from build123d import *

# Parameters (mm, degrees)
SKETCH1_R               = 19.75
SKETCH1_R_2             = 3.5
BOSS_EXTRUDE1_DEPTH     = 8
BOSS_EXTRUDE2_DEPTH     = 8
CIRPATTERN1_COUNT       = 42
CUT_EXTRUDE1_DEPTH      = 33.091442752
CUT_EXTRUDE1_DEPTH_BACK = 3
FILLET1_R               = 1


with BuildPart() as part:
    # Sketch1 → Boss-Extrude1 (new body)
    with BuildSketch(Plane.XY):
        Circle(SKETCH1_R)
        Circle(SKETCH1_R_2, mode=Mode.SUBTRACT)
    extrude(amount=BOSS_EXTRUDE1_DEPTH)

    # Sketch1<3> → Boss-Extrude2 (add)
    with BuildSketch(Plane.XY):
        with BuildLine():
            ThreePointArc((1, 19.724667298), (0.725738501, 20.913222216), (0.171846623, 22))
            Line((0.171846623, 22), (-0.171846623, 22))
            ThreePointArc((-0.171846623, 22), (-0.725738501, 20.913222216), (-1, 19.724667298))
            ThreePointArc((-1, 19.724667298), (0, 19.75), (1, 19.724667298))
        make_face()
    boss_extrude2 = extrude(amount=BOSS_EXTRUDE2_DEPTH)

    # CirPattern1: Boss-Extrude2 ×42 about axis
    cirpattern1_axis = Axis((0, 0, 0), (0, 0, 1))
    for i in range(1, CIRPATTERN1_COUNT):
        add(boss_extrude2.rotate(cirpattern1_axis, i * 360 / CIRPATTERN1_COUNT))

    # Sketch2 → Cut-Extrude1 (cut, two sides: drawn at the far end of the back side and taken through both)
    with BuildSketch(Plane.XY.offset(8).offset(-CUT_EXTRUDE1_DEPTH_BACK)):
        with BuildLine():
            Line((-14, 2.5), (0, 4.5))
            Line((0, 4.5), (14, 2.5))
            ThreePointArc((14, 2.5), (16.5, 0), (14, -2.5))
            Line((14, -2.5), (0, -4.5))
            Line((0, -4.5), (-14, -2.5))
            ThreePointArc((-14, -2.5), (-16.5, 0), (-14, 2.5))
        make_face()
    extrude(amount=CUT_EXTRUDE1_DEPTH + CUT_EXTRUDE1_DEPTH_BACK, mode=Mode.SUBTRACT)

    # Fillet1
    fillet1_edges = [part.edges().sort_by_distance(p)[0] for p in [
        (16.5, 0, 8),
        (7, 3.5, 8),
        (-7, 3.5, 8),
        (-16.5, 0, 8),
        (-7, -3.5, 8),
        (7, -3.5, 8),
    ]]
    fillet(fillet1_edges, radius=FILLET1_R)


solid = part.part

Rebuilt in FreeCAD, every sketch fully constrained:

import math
import FreeCAD as App
import Part
import Sketcher
Q = App.Units.Quantity


def edges_at(feature, points):
    """Names of the edges that pass closest to the given points."""
    edges = feature.Shape.Edges
    near = lambda p: min(range(len(edges)), key=lambda i: edges[i].distToShape(Part.Vertex(*p))[0])
    return sorted({f"Edge{near(p) + 1}" for p in points})

doc = App.newDocument("Part")
body = doc.addObject("PartDesign::Body", "Body")

sketch1 = doc.addObject("Sketcher::SketchObject", "Sketch")
body.addObject(sketch1)
sketch1.AttachmentSupport = (doc.XY_Plane, [""])
sketch1.MapMode = "FlatFace"
sketch1.addGeometry([
    Part.Circle(App.Vector(0, 0, 0), App.Vector(0, 0, 1), 19.8),
    Part.Circle(App.Vector(0, 0, 0), App.Vector(0, 0, 1), 3.5),
], False)
sketch1.addConstraint([
    Sketcher.Constraint("Coincident", 0, 3, -1, 1),
    Sketcher.Constraint("Coincident", 1, 3, -1, 1),
    Sketcher.Constraint("Diameter", 1, Q("7 mm")),
    Sketcher.Constraint("Diameter", 0, Q("39.5 mm")),
])
pad1 = doc.addObject("PartDesign::Pad", "Pad")
body.addObject(pad1)
pad1.Profile = sketch1
pad1.Length = 8

sketch2 = doc.addObject("Sketcher::SketchObject", "Sketch001")
body.addObject(sketch2)
sketch2.AttachmentSupport = (doc.XY_Plane, [""])
sketch2.MapMode = "FlatFace"
sketch2.addGeometry([
    Part.ArcOfCircle(Part.Circle(App.Vector(-3.97, 19.2, 0), App.Vector(0, 0, 1), 5), math.radians(6), math.radians(34)),
    Part.LineSegment(App.Vector(0.17, 22, 0), App.Vector(-0.17, 22, 0)),
    Part.ArcOfCircle(Part.Circle(App.Vector(3.97, 19.2, 0), App.Vector(0, 0, 1), 5), math.radians(146), math.radians(174)),
    Part.ArcOfCircle(Part.Circle(App.Vector(0, 0, 0), App.Vector(0, 0, 1), 19.75), math.radians(87.1), math.radians(92.9)),
], False)
sketch2.addConstraint([
    Sketcher.Constraint("Coincident", 0, 2, 1, 1),
    Sketcher.Constraint("Coincident", 1, 2, 2, 1),
    Sketcher.Constraint("Coincident", 2, 2, 3, 2),
    Sketcher.Constraint("Coincident", 3, 1, 0, 1),
    Sketcher.Constraint("Horizontal", 1),
    Sketcher.Constraint("Coincident", 3, 3, -1, 1),
    Sketcher.Constraint("Equal", 0, 2),
    Sketcher.Constraint("Symmetric", 0, 3, 2, 3, -2),
    Sketcher.Constraint("Radius", 0, Q("5 mm")),
    Sketcher.Constraint("Radius", 3, Q("19.75 mm")),
    Sketcher.Constraint("DistanceY", -1, 1, 0, 2, Q("22 mm")),
    Sketcher.Constraint("DistanceX", 2, 2, -1, 1, Q("1 mm")),
    Sketcher.Constraint("DistanceX", 1, 2, 1, 1, Q("0.343693 mm")),
])
pad2 = doc.addObject("PartDesign::Pad", "Pad001")
body.addObject(pad2)
pad2.Profile = sketch2
pad2.Length = 8
doc.recompute()

polarpattern = doc.addObject("PartDesign::PolarPattern", "PolarPattern")
body.addObject(polarpattern)
polarpattern.Originals = [pad2]
polarpattern.Axis = (doc.Z_Axis, [""])
polarpattern.Angle = 360
polarpattern.Occurrences = 42
body.Tip = polarpattern

sketch3 = doc.addObject("Sketcher::SketchObject", "Sketch002")
body.addObject(sketch3)
sketch3.AttachmentSupport = (doc.XY_Plane, [""])
sketch3.MapMode = "FlatFace"
sketch3.AttachmentOffset = App.Placement(App.Vector(0, 0, 8), App.Rotation())
sketch3.addGeometry([
    Part.LineSegment(App.Vector(0, 4.5, 0), App.Vector(-14, 2.5, 0)),
    Part.ArcOfCircle(Part.Circle(App.Vector(-14, 0, 0), App.Vector(0, 0, 1), 2.5), math.radians(90), math.radians(270)),
    Part.LineSegment(App.Vector(-14, -2.5, 0), App.Vector(0, -4.5, 0)),
    Part.LineSegment(App.Vector(0, -4.5, 0), App.Vector(14, -2.5, 0)),
    Part.ArcOfCircle(Part.Circle(App.Vector(14, 0, 0), App.Vector(0, 0, 1), 2.5), math.radians(-90), math.radians(90)),
    Part.LineSegment(App.Vector(14, 2.5, 0), App.Vector(0, 4.5, 0)),
], False)
sketch3.addConstraint([
    Sketcher.Constraint("Coincident", 0, 2, 1, 1),
    Sketcher.Constraint("Coincident", 1, 2, 2, 1),
    Sketcher.Constraint("Coincident", 2, 2, 3, 1),
    Sketcher.Constraint("Coincident", 3, 2, 4, 1),
    Sketcher.Constraint("Coincident", 4, 2, 5, 1),
    Sketcher.Constraint("Coincident", 5, 2, 0, 1),
    Sketcher.Constraint("Equal", 1, 4),
    Sketcher.Constraint("Symmetric", 1, 3, 4, 3, -1, 1),
    Sketcher.Constraint("Symmetric", 2, 2, 5, 2, -1, 1),
    Sketcher.Constraint("Symmetric", 1, 2, 3, 2, -2),
    Sketcher.Constraint("PointOnObject", 2, 2, -2),
    Sketcher.Constraint("Parallel", 0, 3),
    Sketcher.Constraint("Parallel", 2, 5),
    Sketcher.Constraint("Vertical", 1, 3, 0, 2),
    Sketcher.Constraint("Radius", 1, Q("2.5 mm")),
    Sketcher.Constraint("DistanceX", 1, 3, -1, 1, Q("14 mm")),
    Sketcher.Constraint("DistanceY", 2, 2, 1, 2, Q("2 mm")),
])
pocket1 = doc.addObject("PartDesign::Pocket", "Pocket")
body.addObject(pocket1)
pocket1.Profile = sketch3
pocket1.Type = "TwoLengths"
pocket1.Length = 33.091443
pocket1.Length2 = 3
pocket1.Reversed = True
doc.recompute()

fillet = doc.addObject("PartDesign::Fillet", "Fillet")
body.addObject(fillet)
fillet.Base = (pocket1, edges_at(pocket1, [
    (16.5, 0, 8),
    (7, 3.5, 8),
    (-7, 3.5, 8),
    (-16.5, 0, 8),
    (-7, -3.5, 8),
    (7, -3.5, 8),
]))
fillet.Radius = 1

doc.recompute()
